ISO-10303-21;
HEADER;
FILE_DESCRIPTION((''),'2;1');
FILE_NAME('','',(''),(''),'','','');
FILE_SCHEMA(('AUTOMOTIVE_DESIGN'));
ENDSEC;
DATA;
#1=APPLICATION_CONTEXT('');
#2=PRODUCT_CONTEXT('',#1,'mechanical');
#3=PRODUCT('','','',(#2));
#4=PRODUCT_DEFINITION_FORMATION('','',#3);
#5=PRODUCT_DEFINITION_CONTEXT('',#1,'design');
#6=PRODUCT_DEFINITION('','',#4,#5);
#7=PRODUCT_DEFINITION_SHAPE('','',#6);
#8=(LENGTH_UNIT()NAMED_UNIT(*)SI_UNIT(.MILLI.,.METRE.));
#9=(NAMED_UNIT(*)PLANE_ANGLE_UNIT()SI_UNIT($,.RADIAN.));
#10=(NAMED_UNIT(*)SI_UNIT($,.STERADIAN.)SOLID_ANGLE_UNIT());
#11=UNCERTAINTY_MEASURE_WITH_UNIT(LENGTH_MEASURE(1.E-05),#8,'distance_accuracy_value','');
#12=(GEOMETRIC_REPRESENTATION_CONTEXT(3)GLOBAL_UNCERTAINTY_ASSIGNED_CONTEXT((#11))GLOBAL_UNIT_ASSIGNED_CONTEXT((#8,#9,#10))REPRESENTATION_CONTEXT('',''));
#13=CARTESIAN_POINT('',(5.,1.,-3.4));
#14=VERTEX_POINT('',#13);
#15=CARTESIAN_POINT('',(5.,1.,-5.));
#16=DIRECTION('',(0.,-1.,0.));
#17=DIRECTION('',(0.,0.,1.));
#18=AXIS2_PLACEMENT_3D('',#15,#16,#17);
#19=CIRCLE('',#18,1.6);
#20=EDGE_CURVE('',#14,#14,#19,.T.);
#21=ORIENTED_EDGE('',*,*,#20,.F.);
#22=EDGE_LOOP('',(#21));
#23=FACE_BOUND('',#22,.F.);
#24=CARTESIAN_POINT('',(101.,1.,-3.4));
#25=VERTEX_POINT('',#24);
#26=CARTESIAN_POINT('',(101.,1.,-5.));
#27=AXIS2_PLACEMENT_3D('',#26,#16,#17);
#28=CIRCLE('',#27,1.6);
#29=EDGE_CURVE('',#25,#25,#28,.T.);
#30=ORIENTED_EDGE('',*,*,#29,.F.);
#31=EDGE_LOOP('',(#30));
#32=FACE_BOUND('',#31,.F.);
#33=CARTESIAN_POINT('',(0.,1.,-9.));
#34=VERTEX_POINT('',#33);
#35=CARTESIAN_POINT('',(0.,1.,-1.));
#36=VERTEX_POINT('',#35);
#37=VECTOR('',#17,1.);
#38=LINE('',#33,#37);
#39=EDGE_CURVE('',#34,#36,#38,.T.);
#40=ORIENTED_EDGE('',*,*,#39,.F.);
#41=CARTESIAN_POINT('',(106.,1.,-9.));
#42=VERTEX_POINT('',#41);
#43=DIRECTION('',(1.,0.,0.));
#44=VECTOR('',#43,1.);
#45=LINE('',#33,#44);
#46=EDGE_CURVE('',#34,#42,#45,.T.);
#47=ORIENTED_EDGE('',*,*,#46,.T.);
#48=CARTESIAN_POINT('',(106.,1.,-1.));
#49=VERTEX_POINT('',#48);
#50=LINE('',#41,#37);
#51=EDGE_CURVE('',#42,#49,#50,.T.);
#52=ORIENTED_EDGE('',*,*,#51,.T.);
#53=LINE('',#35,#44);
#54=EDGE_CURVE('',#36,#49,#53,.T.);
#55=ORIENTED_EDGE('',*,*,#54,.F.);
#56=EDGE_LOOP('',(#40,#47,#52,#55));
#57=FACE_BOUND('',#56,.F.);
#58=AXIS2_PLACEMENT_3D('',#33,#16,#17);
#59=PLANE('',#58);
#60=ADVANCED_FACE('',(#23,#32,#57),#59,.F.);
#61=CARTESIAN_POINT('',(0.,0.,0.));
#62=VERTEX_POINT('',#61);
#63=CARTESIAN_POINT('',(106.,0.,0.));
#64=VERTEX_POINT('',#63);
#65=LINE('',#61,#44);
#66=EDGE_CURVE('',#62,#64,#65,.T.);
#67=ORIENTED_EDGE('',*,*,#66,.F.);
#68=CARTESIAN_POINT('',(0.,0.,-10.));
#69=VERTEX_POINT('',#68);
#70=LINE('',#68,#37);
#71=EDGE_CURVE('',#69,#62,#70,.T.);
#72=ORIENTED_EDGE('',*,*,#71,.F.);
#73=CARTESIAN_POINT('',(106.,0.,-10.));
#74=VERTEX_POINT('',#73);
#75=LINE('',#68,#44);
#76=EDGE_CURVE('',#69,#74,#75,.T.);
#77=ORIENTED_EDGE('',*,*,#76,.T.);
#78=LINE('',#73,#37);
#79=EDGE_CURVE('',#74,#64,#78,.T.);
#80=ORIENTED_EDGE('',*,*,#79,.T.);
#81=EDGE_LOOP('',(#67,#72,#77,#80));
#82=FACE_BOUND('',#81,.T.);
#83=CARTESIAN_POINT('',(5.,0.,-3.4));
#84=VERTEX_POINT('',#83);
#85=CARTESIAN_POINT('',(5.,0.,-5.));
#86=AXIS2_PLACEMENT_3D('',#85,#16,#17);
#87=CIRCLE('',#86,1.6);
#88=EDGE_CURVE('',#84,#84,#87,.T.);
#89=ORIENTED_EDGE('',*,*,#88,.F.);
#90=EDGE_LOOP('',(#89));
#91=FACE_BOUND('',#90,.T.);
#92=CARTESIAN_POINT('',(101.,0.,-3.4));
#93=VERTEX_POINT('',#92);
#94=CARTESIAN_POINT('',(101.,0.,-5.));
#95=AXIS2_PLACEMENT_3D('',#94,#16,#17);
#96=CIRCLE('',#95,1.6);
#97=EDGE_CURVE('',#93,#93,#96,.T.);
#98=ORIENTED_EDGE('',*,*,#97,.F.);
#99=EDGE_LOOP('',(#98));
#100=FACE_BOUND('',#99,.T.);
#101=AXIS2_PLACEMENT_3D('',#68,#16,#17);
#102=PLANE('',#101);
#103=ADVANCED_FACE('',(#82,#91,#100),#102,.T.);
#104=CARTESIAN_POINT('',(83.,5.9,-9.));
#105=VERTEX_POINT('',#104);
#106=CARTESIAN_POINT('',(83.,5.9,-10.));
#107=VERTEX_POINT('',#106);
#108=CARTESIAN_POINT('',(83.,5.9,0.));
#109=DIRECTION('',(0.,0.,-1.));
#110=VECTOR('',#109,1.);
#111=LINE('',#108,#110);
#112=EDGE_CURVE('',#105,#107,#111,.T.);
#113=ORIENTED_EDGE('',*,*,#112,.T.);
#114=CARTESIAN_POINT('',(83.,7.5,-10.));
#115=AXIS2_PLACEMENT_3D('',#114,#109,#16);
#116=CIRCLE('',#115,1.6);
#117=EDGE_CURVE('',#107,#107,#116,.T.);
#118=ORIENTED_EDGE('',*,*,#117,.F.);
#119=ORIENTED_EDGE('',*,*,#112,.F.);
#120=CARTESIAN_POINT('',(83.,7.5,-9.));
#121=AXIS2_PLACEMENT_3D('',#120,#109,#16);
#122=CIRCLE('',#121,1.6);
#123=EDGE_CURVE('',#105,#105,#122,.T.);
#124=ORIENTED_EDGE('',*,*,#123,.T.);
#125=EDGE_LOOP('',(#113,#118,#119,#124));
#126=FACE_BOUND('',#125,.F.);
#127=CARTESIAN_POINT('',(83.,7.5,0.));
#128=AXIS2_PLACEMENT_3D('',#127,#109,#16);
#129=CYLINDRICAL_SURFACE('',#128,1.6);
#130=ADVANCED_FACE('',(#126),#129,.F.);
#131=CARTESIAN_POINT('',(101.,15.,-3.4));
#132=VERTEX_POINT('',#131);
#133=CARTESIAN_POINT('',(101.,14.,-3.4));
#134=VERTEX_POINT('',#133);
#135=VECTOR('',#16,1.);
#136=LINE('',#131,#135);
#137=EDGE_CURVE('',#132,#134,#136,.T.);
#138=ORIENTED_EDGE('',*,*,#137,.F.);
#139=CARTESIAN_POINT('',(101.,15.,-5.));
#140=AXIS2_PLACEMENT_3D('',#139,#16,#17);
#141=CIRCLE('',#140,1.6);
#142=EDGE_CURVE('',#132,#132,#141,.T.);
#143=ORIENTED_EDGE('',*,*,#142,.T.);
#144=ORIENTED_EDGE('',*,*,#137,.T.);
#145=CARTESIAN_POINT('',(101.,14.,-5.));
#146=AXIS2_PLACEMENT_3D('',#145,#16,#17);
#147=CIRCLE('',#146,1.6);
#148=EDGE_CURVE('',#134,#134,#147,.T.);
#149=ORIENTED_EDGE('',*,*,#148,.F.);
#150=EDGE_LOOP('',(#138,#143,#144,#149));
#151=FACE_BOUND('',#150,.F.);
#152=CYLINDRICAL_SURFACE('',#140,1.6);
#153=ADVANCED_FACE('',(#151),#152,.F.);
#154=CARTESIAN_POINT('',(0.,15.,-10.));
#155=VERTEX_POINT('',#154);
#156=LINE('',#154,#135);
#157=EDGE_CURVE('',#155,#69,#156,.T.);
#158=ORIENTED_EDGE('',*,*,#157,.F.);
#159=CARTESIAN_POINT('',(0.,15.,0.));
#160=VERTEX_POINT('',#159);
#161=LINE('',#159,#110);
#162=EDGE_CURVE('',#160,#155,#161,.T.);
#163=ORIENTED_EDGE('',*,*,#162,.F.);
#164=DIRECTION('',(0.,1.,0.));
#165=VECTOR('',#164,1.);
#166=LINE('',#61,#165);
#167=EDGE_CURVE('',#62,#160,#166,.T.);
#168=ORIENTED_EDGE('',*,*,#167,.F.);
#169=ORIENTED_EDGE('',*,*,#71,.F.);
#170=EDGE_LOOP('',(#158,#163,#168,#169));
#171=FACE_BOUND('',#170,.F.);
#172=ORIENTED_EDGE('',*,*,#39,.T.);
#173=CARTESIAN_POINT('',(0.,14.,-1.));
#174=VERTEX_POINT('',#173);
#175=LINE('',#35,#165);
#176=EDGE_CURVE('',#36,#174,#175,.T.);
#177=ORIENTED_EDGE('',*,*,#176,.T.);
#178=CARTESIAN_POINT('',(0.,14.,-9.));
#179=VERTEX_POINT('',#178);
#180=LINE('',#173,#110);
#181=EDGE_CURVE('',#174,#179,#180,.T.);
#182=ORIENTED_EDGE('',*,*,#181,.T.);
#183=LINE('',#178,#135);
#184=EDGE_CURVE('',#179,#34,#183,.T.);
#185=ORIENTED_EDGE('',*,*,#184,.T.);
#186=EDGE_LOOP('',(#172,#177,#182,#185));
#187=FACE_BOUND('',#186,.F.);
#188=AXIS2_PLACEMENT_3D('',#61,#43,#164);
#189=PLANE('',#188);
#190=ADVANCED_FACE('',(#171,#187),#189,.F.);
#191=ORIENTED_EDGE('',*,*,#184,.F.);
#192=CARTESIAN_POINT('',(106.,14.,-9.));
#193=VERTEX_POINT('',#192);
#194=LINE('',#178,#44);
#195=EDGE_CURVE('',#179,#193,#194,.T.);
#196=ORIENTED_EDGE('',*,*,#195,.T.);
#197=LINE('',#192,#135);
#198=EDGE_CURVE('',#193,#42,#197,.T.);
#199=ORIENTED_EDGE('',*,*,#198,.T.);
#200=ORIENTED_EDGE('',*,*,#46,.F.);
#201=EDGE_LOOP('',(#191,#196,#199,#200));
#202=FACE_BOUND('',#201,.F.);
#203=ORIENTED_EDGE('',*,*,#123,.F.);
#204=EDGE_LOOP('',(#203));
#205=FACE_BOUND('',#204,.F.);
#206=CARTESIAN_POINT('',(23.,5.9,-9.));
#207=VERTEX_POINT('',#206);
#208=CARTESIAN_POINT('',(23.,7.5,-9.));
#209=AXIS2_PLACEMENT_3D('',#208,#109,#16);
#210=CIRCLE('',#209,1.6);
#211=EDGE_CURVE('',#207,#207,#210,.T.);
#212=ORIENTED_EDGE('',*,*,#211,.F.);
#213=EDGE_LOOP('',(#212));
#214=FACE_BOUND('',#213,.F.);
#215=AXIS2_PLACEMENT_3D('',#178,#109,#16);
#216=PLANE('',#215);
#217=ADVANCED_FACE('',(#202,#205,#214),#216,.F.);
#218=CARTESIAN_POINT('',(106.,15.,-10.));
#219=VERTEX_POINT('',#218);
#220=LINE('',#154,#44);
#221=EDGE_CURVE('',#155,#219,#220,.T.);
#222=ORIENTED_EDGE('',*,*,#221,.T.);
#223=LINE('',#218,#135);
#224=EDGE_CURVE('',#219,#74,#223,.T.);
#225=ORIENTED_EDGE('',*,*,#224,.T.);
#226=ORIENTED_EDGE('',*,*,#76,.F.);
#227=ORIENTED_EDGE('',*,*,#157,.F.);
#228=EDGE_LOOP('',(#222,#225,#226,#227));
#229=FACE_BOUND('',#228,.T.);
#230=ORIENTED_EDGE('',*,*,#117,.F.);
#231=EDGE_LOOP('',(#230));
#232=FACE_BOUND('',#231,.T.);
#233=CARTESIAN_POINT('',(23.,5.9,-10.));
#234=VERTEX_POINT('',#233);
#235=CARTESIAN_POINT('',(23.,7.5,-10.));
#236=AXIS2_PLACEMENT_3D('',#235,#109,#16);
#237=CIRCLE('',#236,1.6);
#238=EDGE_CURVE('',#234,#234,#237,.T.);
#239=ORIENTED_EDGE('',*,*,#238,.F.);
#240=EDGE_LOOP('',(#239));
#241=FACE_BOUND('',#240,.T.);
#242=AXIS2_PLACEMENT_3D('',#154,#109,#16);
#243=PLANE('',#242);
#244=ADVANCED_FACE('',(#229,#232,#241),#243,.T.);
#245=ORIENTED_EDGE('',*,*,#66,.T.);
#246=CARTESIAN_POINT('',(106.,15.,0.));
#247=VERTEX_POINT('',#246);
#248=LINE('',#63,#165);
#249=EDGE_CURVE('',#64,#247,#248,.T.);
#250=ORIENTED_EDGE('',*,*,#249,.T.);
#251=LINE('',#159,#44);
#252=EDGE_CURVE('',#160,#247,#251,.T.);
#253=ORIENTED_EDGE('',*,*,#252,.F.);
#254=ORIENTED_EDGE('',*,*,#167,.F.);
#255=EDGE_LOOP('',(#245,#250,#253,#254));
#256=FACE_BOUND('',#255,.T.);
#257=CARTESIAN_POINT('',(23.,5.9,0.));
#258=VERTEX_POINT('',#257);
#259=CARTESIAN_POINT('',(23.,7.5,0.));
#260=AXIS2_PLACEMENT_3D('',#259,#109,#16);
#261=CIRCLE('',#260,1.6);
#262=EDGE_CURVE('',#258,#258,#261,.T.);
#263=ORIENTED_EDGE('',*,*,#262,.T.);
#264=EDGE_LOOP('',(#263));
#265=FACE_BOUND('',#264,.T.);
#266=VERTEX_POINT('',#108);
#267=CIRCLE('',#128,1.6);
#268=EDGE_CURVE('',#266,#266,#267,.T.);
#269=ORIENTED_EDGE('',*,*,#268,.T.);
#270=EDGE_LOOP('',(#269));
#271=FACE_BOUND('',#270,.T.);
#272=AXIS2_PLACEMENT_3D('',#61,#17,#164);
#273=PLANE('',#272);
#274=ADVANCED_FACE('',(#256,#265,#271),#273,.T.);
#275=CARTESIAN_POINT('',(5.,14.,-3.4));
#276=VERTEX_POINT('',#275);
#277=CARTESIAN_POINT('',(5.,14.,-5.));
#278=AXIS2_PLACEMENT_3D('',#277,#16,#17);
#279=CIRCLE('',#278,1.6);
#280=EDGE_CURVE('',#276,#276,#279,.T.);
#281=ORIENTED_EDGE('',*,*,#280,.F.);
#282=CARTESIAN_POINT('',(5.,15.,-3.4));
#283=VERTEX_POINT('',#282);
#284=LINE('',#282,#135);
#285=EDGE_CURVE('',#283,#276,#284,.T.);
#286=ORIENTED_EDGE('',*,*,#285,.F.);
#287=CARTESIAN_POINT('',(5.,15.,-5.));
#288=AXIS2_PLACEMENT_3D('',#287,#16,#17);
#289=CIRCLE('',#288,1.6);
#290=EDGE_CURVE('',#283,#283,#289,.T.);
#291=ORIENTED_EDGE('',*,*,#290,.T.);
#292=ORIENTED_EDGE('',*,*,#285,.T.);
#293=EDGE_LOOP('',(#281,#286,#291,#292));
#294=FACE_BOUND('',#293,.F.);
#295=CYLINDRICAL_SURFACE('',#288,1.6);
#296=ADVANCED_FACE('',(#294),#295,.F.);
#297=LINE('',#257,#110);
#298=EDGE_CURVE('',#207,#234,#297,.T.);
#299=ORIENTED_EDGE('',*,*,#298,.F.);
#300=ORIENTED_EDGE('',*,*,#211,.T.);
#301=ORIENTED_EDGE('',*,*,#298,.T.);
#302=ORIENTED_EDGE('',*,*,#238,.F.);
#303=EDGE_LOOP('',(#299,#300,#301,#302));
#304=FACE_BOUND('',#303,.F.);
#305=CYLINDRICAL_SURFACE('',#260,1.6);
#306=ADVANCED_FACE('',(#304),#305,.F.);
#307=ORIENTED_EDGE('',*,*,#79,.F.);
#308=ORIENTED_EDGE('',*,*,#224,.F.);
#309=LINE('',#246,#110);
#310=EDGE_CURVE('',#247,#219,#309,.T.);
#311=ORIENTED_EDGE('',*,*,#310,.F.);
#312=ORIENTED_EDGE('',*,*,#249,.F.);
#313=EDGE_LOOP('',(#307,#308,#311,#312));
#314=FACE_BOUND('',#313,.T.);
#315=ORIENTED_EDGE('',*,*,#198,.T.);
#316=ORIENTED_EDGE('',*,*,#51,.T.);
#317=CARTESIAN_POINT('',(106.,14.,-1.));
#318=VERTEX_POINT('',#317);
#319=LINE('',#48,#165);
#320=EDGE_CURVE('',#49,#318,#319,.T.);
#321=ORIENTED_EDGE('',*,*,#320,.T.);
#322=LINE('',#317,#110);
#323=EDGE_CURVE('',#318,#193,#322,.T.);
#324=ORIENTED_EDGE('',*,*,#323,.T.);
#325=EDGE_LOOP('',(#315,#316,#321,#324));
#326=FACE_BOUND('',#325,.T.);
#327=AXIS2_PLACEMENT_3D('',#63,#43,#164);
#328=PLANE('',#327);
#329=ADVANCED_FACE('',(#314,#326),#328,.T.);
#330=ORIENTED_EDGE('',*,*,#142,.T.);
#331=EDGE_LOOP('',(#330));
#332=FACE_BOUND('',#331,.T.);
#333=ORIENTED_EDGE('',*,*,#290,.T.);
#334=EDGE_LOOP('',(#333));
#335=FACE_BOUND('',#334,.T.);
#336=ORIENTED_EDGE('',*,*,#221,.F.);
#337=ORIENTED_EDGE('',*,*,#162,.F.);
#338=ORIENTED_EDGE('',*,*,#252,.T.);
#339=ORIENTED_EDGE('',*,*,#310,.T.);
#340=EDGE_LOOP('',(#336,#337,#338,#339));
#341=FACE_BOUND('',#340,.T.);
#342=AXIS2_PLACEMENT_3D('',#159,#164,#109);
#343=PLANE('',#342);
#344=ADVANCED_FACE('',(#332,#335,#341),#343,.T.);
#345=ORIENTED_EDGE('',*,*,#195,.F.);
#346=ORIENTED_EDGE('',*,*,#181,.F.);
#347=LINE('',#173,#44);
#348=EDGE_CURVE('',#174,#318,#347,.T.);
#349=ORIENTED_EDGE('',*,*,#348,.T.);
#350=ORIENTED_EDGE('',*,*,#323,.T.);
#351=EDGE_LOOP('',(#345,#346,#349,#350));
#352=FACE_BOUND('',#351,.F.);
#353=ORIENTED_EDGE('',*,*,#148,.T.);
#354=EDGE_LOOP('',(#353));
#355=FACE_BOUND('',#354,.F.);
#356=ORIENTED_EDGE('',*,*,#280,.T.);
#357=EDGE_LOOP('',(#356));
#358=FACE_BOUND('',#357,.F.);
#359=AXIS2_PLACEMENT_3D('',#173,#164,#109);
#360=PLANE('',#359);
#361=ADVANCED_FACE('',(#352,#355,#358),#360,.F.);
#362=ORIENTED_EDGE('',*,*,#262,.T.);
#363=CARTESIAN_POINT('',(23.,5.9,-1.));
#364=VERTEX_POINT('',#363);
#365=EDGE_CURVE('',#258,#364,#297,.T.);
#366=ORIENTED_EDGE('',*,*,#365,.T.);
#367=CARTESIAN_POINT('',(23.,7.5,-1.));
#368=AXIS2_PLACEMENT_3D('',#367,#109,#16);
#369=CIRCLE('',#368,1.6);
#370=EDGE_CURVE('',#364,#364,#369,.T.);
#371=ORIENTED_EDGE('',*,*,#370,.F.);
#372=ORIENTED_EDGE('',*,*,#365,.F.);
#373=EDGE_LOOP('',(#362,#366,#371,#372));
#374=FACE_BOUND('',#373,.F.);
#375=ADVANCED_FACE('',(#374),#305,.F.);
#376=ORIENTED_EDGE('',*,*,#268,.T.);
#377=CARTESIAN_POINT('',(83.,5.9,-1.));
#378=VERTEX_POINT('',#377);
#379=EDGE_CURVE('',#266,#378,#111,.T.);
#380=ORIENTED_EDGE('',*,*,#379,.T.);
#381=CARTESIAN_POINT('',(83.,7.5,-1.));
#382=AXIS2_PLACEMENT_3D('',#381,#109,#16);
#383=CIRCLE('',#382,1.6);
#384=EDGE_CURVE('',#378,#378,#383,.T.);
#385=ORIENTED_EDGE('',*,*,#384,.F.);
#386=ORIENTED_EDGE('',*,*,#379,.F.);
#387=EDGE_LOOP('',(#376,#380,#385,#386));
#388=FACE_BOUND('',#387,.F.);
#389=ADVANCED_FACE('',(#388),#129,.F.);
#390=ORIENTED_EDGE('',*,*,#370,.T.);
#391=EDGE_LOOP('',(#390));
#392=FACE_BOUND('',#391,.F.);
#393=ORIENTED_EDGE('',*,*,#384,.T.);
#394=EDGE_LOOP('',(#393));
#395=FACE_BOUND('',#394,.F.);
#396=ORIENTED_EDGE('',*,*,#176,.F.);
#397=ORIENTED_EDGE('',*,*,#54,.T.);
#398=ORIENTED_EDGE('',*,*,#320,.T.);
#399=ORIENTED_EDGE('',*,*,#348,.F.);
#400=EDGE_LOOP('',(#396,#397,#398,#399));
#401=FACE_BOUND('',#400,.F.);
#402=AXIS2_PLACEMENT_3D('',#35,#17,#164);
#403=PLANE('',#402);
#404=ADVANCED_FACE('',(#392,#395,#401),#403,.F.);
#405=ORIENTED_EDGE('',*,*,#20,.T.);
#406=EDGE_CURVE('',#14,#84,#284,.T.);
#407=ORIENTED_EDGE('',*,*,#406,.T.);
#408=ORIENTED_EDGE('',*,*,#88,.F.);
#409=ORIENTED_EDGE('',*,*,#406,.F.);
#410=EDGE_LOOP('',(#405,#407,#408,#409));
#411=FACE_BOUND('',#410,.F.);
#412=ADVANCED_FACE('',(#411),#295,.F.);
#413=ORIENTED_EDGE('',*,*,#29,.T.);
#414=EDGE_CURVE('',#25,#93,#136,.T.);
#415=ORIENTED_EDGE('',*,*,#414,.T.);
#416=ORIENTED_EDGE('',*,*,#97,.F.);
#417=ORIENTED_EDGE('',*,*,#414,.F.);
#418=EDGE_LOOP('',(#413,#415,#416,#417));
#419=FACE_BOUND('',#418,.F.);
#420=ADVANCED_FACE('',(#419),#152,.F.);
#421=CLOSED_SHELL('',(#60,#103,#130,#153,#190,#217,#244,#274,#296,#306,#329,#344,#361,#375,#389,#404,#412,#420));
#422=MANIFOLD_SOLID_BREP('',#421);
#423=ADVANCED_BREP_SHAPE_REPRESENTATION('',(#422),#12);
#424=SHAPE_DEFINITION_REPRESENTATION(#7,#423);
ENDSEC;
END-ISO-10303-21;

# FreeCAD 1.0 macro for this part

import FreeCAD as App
import Part
import Sketcher
from FreeCAD import Vector

doc = App.newDocument("Part")
params = doc.addObject("Spreadsheet::Sheet", "Params")
for row, (alias, value) in enumerate([
    ("sketch1_width", "15 mm"),
    ("sketch1_width2", "13 mm"),
    ("sketch1_height", "10 mm"),
    ("sketch1_height2", "8 mm"),
    ("pad1_length", "106 mm"),
    ("sketch2_diameter", "3.2 mm"),
    ("hole_diameter", "3.2 mm"),
    ("sketch3_diameter", "3.2 mm"),
    ("hole2_diameter", "3.2 mm"),
], start=1):
    params.set(f"A{row}", alias)
    params.set(f"B{row}", "=" + value)
    params.setAlias(f"B{row}", alias)

body = doc.addObject("PartDesign::Body", "Body")

sketch1 = doc.addObject("Sketcher::SketchObject", "Sketch")
body.addObject(sketch1)
sketch1.AttachmentSupport = (doc.YZ_Plane, [""])
sketch1.MapMode = "FlatFace"
sketch1.addGeometry(Part.LineSegment(Vector(15, 0, 0), Vector(0, 0, 0)), False)
sketch1.addGeometry(Part.LineSegment(Vector(0, 0, 0), Vector(0, -10, 0)), False)
sketch1.addGeometry(Part.LineSegment(Vector(0, -10, 0), Vector(15, -10, 0)), False)
sketch1.addGeometry(Part.LineSegment(Vector(15, -10, 0), Vector(15, 0, 0)), False)
sketch1.addGeometry(Part.LineSegment(Vector(1, -9, 0), Vector(1, -1, 0)), False)
sketch1.addGeometry(Part.LineSegment(Vector(1, -1, 0), Vector(14, -1, 0)), False)
sketch1.addGeometry(Part.LineSegment(Vector(14, -1, 0), Vector(14, -9, 0)), False)
sketch1.addGeometry(Part.LineSegment(Vector(14, -9, 0), Vector(1, -9, 0)), False)
sketch1.addConstraint(Sketcher.Constraint("Coincident", 0, 2, 1, 1))
sketch1.addConstraint(Sketcher.Constraint("Coincident", 1, 2, 2, 1))
sketch1.addConstraint(Sketcher.Constraint("Coincident", 2, 2, 3, 1))
sketch1.addConstraint(Sketcher.Constraint("Coincident", 3, 2, 0, 1))
sketch1.addConstraint(Sketcher.Constraint("Coincident", 4, 2, 5, 1))
sketch1.addConstraint(Sketcher.Constraint("Coincident", 5, 2, 6, 1))
sketch1.addConstraint(Sketcher.Constraint("Coincident", 6, 2, 7, 1))
sketch1.addConstraint(Sketcher.Constraint("Coincident", 7, 2, 4, 1))
sketch1.addConstraint(Sketcher.Constraint("Horizontal", 0))
sketch1.addConstraint(Sketcher.Constraint("Vertical", 1))
sketch1.addConstraint(Sketcher.Constraint("Horizontal", 2))
sketch1.addConstraint(Sketcher.Constraint("Vertical", 3))
sketch1.addConstraint(Sketcher.Constraint("Vertical", 4))
sketch1.addConstraint(Sketcher.Constraint("Horizontal", 5))
sketch1.addConstraint(Sketcher.Constraint("Vertical", 6))
sketch1.addConstraint(Sketcher.Constraint("Horizontal", 7))
sketch1.addConstraint(Sketcher.Constraint("Coincident", 0, 2, -1, 1))
sketch1.addConstraint(Sketcher.Constraint("DistanceX", 0, 2, 0, 1, 15.0))
sketch1.addConstraint(Sketcher.Constraint("DistanceX", 5, 1, 5, 2, 13.0))
sketch1.addConstraint(Sketcher.Constraint("DistanceY", 1, 2, 1, 1, 10.0))
sketch1.addConstraint(Sketcher.Constraint("DistanceY", 4, 1, 4, 2, 8.0))
sketch1.addConstraint(Sketcher.Constraint("DistanceX", -1, 1, 4, 2, 1.0))
sketch1.addConstraint(Sketcher.Constraint("DistanceY", 4, 2, -1, 1, 1.0))
sketch1.setExpression("Constraints[17]", "Params.sketch1_width")
sketch1.setExpression("Constraints[18]", "Params.sketch1_width2")
sketch1.setExpression("Constraints[19]", "Params.sketch1_height")
sketch1.setExpression("Constraints[20]", "Params.sketch1_height2")
pad1 = doc.addObject("PartDesign::Pad", "Pad")
body.addObject(pad1)
pad1.Profile = sketch1
pad1.setExpression("Length", "Params.pad1_length")

sketch2 = doc.addObject("Sketcher::SketchObject", "Sketch001")
body.addObject(sketch2)
sketch2.AttachmentSupport = (doc.XZ_Plane, [""])
sketch2.MapMode = "FlatFace"
sketch2.AttachmentOffset = App.Placement(Vector(0, 0, -15), App.Rotation())
sketch2.addGeometry(Part.Circle(Vector(5, -5, 0), Vector(0, 0, 1), 1.6), False)
sketch2.addGeometry(Part.Circle(Vector(101, -5, 0), Vector(0, 0, 1), 1.6), False)
sketch2.addConstraint(Sketcher.Constraint("Equal", 0, 1))
sketch2.addConstraint(Sketcher.Constraint("Horizontal", 0, 3, 1, 3))
sketch2.addConstraint(Sketcher.Constraint("Diameter", 0, 3.2))
sketch2.addConstraint(Sketcher.Constraint("DistanceX", -1, 1, 0, 3, 5.0))
sketch2.addConstraint(Sketcher.Constraint("DistanceY", 0, 3, -1, 1, 5.0))
sketch2.addConstraint(Sketcher.Constraint("DistanceX", -1, 1, 1, 3, 101.0))
sketch2.setExpression("Constraints[2]", "Params.sketch2_diameter")
doc.recompute()
hole = doc.addObject("PartDesign::Hole", "Hole")
body.addObject(hole)
hole.Profile = sketch2
hole.ThreadType = "None"
hole.setExpression("Diameter", "Params.hole_diameter")
hole.DepthType = "ThroughAll"
hole.Reversed = True

sketch3 = doc.addObject("Sketcher::SketchObject", "Sketch002")
body.addObject(sketch3)
sketch3.AttachmentSupport = (doc.XY_Plane, [""])
sketch3.MapMode = "FlatFace"
sketch3.addGeometry(Part.Circle(Vector(23, 7.5, 0), Vector(0, 0, 1), 1.6), False)
sketch3.addGeometry(Part.Circle(Vector(83, 7.5, 0), Vector(0, 0, 1), 1.6), False)
sketch3.addConstraint(Sketcher.Constraint("Equal", 0, 1))
sketch3.addConstraint(Sketcher.Constraint("Horizontal", 0, 3, 1, 3))
sketch3.addConstraint(Sketcher.Constraint("Diameter", 0, 3.2))
sketch3.addConstraint(Sketcher.Constraint("DistanceX", -1, 1, 0, 3, 23.0))
sketch3.addConstraint(Sketcher.Constraint("DistanceX", -1, 1, 1, 3, 83.0))
sketch3.addConstraint(Sketcher.Constraint("DistanceY", -1, 1, 0, 3, 7.5))
sketch3.setExpression("Constraints[2]", "Params.sketch3_diameter")
doc.recompute()
hole2 = doc.addObject("PartDesign::Hole", "Hole001")
body.addObject(hole2)
hole2.Profile = sketch3
hole2.ThreadType = "None"
hole2.setExpression("Diameter", "Params.hole2_diameter")
hole2.DepthType = "ThroughAll"

doc.recompute()
